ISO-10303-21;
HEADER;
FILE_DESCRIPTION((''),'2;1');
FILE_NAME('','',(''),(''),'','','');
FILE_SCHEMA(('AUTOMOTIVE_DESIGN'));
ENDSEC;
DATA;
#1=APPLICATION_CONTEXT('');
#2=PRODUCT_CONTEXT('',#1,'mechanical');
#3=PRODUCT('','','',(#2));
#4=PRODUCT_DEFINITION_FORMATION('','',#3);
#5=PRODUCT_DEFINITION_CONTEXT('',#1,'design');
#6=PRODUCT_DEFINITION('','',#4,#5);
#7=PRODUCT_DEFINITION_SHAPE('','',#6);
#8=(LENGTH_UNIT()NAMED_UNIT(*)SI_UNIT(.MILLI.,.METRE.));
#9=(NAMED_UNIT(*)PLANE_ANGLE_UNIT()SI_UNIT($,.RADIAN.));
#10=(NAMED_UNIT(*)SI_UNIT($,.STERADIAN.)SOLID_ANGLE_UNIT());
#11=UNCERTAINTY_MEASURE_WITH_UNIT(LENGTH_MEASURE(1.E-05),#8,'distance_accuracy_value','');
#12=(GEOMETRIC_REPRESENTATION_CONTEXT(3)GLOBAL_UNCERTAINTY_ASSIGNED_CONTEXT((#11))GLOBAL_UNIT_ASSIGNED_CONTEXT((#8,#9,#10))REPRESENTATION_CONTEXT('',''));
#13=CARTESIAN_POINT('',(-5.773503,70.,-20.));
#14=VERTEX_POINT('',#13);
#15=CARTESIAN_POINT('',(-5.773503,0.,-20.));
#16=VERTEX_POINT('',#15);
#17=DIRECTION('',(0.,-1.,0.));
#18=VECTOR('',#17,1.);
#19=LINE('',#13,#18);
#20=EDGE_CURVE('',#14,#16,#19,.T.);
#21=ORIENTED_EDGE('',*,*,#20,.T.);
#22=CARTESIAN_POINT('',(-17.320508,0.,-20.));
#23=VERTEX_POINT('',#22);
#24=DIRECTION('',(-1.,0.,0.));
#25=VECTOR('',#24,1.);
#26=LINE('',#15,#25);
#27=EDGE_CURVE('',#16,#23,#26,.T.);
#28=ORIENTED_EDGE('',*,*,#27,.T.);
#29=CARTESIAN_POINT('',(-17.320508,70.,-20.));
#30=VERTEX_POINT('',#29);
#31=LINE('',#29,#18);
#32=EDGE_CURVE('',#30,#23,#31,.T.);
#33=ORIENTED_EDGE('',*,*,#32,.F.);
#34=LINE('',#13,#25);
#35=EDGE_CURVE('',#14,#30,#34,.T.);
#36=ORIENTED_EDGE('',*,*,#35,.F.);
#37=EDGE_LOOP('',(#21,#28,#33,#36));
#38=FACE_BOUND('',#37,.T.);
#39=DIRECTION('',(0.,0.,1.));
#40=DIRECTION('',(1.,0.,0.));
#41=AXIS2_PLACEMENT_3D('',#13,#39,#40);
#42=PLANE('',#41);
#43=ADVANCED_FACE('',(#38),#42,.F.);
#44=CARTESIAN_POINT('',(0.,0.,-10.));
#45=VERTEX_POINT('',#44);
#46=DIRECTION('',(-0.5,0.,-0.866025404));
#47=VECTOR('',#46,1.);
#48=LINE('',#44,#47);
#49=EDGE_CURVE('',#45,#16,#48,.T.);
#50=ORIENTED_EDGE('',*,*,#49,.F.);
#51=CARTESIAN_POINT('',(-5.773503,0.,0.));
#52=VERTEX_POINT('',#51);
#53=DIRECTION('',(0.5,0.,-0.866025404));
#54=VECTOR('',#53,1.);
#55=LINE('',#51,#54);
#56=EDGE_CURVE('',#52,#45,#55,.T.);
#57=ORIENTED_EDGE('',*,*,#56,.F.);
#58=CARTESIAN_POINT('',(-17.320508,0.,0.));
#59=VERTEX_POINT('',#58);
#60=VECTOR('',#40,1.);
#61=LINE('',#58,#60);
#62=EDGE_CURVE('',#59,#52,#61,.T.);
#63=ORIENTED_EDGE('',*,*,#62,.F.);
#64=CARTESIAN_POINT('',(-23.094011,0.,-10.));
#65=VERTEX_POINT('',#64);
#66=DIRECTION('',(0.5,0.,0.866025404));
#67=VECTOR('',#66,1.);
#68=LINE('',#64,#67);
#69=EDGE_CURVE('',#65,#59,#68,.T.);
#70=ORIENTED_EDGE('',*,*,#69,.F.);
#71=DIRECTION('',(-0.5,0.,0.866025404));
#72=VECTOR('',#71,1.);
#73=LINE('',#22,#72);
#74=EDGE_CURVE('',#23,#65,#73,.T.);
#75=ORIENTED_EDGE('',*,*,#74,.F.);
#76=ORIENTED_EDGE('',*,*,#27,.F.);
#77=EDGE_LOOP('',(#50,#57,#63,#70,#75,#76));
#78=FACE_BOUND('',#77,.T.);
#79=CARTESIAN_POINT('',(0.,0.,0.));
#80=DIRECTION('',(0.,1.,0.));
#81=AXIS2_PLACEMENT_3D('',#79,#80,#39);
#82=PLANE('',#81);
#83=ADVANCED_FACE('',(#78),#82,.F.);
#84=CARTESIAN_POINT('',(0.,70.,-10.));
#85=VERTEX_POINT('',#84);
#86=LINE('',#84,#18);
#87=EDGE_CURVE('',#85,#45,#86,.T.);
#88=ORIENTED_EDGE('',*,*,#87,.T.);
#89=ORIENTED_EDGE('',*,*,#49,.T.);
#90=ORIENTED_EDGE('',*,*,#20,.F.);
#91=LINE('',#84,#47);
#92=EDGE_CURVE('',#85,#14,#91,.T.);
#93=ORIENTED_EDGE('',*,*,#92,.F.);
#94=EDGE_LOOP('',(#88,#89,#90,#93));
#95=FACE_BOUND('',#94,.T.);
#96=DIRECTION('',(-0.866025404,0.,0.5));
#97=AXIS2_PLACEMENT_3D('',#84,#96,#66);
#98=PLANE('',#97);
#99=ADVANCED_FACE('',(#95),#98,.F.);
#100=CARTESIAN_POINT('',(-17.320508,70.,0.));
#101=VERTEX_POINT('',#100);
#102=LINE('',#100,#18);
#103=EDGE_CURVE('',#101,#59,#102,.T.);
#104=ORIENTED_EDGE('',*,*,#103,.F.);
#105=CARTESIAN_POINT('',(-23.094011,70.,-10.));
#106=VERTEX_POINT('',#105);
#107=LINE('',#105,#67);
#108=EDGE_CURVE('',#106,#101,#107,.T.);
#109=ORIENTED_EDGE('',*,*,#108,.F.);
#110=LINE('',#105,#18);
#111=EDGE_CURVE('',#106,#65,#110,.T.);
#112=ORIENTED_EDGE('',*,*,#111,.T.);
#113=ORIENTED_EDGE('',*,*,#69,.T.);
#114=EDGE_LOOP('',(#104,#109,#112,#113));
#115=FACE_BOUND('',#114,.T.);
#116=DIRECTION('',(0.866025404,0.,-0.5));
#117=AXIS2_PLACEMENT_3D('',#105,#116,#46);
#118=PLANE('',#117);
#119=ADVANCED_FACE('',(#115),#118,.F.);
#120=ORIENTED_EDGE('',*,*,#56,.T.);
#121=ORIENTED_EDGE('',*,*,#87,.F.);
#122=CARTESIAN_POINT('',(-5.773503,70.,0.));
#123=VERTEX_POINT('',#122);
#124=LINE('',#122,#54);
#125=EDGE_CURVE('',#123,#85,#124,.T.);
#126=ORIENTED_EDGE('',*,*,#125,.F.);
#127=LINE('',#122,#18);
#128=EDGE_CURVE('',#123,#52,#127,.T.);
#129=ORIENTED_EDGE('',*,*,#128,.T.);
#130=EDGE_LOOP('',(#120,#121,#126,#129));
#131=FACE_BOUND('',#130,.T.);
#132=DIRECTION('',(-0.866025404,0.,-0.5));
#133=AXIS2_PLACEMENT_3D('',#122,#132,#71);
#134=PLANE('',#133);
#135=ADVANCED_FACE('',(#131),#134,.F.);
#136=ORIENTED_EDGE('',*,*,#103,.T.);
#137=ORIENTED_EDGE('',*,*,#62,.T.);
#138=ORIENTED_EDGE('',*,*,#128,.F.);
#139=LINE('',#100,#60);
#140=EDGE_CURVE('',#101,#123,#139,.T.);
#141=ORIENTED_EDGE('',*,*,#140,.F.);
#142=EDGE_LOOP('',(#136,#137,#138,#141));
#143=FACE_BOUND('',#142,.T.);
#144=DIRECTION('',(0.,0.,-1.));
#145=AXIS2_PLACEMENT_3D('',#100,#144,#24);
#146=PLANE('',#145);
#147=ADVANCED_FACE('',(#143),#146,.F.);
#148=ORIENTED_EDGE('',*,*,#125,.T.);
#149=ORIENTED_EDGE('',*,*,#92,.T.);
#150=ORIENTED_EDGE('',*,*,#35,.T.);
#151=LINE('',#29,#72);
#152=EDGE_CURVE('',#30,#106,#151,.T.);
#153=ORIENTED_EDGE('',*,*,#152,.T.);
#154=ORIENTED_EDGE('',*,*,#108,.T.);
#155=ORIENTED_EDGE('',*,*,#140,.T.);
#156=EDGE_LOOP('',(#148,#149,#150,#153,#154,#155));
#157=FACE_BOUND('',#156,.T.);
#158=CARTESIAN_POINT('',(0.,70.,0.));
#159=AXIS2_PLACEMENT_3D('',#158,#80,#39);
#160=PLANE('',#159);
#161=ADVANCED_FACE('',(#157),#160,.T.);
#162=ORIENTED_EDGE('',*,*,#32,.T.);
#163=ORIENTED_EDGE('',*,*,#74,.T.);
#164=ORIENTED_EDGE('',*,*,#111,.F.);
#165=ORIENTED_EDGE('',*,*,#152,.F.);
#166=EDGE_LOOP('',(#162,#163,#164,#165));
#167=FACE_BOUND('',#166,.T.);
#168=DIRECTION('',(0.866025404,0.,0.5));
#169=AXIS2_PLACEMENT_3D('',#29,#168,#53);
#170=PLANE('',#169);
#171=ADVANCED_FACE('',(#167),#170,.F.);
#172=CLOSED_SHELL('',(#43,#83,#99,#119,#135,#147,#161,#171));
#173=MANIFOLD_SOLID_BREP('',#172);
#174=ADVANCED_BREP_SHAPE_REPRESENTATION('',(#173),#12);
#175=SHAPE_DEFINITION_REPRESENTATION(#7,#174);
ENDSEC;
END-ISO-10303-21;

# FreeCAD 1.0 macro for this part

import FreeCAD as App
import Part
import Sketcher
from FreeCAD import Vector
Q = App.Units.Quantity

doc = App.newDocument("Part")
body = doc.addObject("PartDesign::Body", "Body")

# Sketch on XZ plane
sketch1 = body.newObject("Sketcher::SketchObject", "Sketch")
sketch1.AttachmentSupport = (doc.getObject("XZ_Plane"), [""])
sketch1.MapMode = "FlatFace"
sketch1.addGeometry([
    Part.LineSegment(Vector(0, -10, 0), Vector(-6, -20, 0)),  # 0
    Part.LineSegment(Vector(-6, -20, 0), Vector(-17, -20, 0)),  # 1
    Part.LineSegment(Vector(-17, -20, 0), Vector(-23, -10, 0)),  # 2
    Part.LineSegment(Vector(-23, -10, 0), Vector(-17, 0, 0)),  # 3
    Part.LineSegment(Vector(-17, 0, 0), Vector(-6, 0, 0)),  # 4
    Part.LineSegment(Vector(-6, 0, 0), Vector(0, -10, 0)),  # 5
], False)
sketch1.addConstraint([
    Sketcher.Constraint("Coincident", 0, 2, 1, 1),
    Sketcher.Constraint("Coincident", 1, 2, 2, 1),
    Sketcher.Constraint("Coincident", 2, 2, 3, 1),
    Sketcher.Constraint("Coincident", 3, 2, 4, 1),
    Sketcher.Constraint("Coincident", 4, 2, 5, 1),
    Sketcher.Constraint("Coincident", 5, 2, 0, 1),
    Sketcher.Constraint("Horizontal", 1),
    Sketcher.Constraint("Horizontal", 4),
    Sketcher.Constraint("PointOnObject", 3, 2, -1),
    Sketcher.Constraint("PointOnObject", 5, 2, -2),
    Sketcher.Constraint("Parallel", 0, 3),
    Sketcher.Constraint("Parallel", 2, 5),
    Sketcher.Constraint("Horizontal", 2, 2, 5, 2),
    Sketcher.Constraint("Vertical", 1, 2, 3, 2),
    Sketcher.Constraint("Vertical", 0, 2, 4, 2),
    Sketcher.Constraint("Angle", 0, Q("-120 deg")),
    Sketcher.Constraint("DistanceY", 0, 2, -1, 1, Q("20 mm")),
    Sketcher.Constraint("DistanceX", 1, 2, 1, 1, Q("11.547005 mm")),
])
pad1 = body.newObject("PartDesign::Pad", "Pad")
pad1.Profile = sketch1
pad1.Length = 70
pad1.Reversed = True

doc.recompute()
